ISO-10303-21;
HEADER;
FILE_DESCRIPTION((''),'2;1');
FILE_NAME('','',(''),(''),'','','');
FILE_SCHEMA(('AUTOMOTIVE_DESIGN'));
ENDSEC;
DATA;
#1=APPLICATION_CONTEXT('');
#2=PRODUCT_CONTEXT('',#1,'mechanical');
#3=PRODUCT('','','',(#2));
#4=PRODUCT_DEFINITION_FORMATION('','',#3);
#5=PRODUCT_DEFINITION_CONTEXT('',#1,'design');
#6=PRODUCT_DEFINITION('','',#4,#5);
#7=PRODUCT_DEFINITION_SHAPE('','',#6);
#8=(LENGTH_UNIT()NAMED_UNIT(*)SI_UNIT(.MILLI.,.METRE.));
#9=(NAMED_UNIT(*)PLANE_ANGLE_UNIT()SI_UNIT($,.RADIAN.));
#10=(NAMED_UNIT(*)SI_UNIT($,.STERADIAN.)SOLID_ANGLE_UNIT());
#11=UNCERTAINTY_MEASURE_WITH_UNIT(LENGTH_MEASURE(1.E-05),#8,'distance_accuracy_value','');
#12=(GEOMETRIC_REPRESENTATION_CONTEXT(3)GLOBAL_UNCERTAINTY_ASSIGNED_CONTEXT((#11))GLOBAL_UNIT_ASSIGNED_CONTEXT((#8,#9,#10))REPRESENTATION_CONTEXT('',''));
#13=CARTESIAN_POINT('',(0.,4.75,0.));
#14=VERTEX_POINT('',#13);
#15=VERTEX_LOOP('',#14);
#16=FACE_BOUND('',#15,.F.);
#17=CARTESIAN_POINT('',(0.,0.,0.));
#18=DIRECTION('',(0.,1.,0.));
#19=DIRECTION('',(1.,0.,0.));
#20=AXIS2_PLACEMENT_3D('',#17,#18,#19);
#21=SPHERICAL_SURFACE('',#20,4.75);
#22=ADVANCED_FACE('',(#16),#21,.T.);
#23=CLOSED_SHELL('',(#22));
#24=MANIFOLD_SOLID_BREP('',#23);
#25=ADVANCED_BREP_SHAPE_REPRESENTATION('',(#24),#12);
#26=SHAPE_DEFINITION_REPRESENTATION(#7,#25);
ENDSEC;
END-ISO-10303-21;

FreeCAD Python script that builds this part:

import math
import FreeCAD as App
import Part
import Sketcher
from FreeCAD import Vector

doc = App.newDocument("Part")
body = doc.addObject("PartDesign::Body", "Body")

# Sketch on XY plane
sketch1 = body.newObject("Sketcher::SketchObject", "Sketch")
sketch1.AttachmentSupport = (doc.getObject("XY_Plane"), [""])
sketch1.MapMode = "FlatFace"
sketch1.addGeometry(Part.ArcOfCircle(Part.Circle(Vector(0, 0, 0), Vector(0, 0, 1), 4.75), math.radians(-90), math.radians(90)), False)
sketch1.addGeometry(Part.LineSegment(Vector(0, 4.75, 0), Vector(0, -4.75, 0)), False)
sketch1.addConstraint(Sketcher.Constraint("Coincident", 0, 1, 1, 2))
sketch1.addConstraint(Sketcher.Constraint("Coincident", 1, 1, 0, 2))
sketch1.addConstraint(Sketcher.Constraint("Vertical", 1))
sketch1.addConstraint(Sketcher.Constraint("Coincident", 0, 3, -1, 1))
sketch1.addConstraint(Sketcher.Constraint("PointOnObject", 0, 1, -2))
sketch1.addConstraint(Sketcher.Constraint("Radius", 0, 4.75))
revolution = body.newObject("PartDesign::Revolution", "Revolution")
revolution.Profile = sketch1
revolution.ReferenceAxis = (sketch1, ["V_Axis"])
revolution.Angle = 360

doc.recompute()
